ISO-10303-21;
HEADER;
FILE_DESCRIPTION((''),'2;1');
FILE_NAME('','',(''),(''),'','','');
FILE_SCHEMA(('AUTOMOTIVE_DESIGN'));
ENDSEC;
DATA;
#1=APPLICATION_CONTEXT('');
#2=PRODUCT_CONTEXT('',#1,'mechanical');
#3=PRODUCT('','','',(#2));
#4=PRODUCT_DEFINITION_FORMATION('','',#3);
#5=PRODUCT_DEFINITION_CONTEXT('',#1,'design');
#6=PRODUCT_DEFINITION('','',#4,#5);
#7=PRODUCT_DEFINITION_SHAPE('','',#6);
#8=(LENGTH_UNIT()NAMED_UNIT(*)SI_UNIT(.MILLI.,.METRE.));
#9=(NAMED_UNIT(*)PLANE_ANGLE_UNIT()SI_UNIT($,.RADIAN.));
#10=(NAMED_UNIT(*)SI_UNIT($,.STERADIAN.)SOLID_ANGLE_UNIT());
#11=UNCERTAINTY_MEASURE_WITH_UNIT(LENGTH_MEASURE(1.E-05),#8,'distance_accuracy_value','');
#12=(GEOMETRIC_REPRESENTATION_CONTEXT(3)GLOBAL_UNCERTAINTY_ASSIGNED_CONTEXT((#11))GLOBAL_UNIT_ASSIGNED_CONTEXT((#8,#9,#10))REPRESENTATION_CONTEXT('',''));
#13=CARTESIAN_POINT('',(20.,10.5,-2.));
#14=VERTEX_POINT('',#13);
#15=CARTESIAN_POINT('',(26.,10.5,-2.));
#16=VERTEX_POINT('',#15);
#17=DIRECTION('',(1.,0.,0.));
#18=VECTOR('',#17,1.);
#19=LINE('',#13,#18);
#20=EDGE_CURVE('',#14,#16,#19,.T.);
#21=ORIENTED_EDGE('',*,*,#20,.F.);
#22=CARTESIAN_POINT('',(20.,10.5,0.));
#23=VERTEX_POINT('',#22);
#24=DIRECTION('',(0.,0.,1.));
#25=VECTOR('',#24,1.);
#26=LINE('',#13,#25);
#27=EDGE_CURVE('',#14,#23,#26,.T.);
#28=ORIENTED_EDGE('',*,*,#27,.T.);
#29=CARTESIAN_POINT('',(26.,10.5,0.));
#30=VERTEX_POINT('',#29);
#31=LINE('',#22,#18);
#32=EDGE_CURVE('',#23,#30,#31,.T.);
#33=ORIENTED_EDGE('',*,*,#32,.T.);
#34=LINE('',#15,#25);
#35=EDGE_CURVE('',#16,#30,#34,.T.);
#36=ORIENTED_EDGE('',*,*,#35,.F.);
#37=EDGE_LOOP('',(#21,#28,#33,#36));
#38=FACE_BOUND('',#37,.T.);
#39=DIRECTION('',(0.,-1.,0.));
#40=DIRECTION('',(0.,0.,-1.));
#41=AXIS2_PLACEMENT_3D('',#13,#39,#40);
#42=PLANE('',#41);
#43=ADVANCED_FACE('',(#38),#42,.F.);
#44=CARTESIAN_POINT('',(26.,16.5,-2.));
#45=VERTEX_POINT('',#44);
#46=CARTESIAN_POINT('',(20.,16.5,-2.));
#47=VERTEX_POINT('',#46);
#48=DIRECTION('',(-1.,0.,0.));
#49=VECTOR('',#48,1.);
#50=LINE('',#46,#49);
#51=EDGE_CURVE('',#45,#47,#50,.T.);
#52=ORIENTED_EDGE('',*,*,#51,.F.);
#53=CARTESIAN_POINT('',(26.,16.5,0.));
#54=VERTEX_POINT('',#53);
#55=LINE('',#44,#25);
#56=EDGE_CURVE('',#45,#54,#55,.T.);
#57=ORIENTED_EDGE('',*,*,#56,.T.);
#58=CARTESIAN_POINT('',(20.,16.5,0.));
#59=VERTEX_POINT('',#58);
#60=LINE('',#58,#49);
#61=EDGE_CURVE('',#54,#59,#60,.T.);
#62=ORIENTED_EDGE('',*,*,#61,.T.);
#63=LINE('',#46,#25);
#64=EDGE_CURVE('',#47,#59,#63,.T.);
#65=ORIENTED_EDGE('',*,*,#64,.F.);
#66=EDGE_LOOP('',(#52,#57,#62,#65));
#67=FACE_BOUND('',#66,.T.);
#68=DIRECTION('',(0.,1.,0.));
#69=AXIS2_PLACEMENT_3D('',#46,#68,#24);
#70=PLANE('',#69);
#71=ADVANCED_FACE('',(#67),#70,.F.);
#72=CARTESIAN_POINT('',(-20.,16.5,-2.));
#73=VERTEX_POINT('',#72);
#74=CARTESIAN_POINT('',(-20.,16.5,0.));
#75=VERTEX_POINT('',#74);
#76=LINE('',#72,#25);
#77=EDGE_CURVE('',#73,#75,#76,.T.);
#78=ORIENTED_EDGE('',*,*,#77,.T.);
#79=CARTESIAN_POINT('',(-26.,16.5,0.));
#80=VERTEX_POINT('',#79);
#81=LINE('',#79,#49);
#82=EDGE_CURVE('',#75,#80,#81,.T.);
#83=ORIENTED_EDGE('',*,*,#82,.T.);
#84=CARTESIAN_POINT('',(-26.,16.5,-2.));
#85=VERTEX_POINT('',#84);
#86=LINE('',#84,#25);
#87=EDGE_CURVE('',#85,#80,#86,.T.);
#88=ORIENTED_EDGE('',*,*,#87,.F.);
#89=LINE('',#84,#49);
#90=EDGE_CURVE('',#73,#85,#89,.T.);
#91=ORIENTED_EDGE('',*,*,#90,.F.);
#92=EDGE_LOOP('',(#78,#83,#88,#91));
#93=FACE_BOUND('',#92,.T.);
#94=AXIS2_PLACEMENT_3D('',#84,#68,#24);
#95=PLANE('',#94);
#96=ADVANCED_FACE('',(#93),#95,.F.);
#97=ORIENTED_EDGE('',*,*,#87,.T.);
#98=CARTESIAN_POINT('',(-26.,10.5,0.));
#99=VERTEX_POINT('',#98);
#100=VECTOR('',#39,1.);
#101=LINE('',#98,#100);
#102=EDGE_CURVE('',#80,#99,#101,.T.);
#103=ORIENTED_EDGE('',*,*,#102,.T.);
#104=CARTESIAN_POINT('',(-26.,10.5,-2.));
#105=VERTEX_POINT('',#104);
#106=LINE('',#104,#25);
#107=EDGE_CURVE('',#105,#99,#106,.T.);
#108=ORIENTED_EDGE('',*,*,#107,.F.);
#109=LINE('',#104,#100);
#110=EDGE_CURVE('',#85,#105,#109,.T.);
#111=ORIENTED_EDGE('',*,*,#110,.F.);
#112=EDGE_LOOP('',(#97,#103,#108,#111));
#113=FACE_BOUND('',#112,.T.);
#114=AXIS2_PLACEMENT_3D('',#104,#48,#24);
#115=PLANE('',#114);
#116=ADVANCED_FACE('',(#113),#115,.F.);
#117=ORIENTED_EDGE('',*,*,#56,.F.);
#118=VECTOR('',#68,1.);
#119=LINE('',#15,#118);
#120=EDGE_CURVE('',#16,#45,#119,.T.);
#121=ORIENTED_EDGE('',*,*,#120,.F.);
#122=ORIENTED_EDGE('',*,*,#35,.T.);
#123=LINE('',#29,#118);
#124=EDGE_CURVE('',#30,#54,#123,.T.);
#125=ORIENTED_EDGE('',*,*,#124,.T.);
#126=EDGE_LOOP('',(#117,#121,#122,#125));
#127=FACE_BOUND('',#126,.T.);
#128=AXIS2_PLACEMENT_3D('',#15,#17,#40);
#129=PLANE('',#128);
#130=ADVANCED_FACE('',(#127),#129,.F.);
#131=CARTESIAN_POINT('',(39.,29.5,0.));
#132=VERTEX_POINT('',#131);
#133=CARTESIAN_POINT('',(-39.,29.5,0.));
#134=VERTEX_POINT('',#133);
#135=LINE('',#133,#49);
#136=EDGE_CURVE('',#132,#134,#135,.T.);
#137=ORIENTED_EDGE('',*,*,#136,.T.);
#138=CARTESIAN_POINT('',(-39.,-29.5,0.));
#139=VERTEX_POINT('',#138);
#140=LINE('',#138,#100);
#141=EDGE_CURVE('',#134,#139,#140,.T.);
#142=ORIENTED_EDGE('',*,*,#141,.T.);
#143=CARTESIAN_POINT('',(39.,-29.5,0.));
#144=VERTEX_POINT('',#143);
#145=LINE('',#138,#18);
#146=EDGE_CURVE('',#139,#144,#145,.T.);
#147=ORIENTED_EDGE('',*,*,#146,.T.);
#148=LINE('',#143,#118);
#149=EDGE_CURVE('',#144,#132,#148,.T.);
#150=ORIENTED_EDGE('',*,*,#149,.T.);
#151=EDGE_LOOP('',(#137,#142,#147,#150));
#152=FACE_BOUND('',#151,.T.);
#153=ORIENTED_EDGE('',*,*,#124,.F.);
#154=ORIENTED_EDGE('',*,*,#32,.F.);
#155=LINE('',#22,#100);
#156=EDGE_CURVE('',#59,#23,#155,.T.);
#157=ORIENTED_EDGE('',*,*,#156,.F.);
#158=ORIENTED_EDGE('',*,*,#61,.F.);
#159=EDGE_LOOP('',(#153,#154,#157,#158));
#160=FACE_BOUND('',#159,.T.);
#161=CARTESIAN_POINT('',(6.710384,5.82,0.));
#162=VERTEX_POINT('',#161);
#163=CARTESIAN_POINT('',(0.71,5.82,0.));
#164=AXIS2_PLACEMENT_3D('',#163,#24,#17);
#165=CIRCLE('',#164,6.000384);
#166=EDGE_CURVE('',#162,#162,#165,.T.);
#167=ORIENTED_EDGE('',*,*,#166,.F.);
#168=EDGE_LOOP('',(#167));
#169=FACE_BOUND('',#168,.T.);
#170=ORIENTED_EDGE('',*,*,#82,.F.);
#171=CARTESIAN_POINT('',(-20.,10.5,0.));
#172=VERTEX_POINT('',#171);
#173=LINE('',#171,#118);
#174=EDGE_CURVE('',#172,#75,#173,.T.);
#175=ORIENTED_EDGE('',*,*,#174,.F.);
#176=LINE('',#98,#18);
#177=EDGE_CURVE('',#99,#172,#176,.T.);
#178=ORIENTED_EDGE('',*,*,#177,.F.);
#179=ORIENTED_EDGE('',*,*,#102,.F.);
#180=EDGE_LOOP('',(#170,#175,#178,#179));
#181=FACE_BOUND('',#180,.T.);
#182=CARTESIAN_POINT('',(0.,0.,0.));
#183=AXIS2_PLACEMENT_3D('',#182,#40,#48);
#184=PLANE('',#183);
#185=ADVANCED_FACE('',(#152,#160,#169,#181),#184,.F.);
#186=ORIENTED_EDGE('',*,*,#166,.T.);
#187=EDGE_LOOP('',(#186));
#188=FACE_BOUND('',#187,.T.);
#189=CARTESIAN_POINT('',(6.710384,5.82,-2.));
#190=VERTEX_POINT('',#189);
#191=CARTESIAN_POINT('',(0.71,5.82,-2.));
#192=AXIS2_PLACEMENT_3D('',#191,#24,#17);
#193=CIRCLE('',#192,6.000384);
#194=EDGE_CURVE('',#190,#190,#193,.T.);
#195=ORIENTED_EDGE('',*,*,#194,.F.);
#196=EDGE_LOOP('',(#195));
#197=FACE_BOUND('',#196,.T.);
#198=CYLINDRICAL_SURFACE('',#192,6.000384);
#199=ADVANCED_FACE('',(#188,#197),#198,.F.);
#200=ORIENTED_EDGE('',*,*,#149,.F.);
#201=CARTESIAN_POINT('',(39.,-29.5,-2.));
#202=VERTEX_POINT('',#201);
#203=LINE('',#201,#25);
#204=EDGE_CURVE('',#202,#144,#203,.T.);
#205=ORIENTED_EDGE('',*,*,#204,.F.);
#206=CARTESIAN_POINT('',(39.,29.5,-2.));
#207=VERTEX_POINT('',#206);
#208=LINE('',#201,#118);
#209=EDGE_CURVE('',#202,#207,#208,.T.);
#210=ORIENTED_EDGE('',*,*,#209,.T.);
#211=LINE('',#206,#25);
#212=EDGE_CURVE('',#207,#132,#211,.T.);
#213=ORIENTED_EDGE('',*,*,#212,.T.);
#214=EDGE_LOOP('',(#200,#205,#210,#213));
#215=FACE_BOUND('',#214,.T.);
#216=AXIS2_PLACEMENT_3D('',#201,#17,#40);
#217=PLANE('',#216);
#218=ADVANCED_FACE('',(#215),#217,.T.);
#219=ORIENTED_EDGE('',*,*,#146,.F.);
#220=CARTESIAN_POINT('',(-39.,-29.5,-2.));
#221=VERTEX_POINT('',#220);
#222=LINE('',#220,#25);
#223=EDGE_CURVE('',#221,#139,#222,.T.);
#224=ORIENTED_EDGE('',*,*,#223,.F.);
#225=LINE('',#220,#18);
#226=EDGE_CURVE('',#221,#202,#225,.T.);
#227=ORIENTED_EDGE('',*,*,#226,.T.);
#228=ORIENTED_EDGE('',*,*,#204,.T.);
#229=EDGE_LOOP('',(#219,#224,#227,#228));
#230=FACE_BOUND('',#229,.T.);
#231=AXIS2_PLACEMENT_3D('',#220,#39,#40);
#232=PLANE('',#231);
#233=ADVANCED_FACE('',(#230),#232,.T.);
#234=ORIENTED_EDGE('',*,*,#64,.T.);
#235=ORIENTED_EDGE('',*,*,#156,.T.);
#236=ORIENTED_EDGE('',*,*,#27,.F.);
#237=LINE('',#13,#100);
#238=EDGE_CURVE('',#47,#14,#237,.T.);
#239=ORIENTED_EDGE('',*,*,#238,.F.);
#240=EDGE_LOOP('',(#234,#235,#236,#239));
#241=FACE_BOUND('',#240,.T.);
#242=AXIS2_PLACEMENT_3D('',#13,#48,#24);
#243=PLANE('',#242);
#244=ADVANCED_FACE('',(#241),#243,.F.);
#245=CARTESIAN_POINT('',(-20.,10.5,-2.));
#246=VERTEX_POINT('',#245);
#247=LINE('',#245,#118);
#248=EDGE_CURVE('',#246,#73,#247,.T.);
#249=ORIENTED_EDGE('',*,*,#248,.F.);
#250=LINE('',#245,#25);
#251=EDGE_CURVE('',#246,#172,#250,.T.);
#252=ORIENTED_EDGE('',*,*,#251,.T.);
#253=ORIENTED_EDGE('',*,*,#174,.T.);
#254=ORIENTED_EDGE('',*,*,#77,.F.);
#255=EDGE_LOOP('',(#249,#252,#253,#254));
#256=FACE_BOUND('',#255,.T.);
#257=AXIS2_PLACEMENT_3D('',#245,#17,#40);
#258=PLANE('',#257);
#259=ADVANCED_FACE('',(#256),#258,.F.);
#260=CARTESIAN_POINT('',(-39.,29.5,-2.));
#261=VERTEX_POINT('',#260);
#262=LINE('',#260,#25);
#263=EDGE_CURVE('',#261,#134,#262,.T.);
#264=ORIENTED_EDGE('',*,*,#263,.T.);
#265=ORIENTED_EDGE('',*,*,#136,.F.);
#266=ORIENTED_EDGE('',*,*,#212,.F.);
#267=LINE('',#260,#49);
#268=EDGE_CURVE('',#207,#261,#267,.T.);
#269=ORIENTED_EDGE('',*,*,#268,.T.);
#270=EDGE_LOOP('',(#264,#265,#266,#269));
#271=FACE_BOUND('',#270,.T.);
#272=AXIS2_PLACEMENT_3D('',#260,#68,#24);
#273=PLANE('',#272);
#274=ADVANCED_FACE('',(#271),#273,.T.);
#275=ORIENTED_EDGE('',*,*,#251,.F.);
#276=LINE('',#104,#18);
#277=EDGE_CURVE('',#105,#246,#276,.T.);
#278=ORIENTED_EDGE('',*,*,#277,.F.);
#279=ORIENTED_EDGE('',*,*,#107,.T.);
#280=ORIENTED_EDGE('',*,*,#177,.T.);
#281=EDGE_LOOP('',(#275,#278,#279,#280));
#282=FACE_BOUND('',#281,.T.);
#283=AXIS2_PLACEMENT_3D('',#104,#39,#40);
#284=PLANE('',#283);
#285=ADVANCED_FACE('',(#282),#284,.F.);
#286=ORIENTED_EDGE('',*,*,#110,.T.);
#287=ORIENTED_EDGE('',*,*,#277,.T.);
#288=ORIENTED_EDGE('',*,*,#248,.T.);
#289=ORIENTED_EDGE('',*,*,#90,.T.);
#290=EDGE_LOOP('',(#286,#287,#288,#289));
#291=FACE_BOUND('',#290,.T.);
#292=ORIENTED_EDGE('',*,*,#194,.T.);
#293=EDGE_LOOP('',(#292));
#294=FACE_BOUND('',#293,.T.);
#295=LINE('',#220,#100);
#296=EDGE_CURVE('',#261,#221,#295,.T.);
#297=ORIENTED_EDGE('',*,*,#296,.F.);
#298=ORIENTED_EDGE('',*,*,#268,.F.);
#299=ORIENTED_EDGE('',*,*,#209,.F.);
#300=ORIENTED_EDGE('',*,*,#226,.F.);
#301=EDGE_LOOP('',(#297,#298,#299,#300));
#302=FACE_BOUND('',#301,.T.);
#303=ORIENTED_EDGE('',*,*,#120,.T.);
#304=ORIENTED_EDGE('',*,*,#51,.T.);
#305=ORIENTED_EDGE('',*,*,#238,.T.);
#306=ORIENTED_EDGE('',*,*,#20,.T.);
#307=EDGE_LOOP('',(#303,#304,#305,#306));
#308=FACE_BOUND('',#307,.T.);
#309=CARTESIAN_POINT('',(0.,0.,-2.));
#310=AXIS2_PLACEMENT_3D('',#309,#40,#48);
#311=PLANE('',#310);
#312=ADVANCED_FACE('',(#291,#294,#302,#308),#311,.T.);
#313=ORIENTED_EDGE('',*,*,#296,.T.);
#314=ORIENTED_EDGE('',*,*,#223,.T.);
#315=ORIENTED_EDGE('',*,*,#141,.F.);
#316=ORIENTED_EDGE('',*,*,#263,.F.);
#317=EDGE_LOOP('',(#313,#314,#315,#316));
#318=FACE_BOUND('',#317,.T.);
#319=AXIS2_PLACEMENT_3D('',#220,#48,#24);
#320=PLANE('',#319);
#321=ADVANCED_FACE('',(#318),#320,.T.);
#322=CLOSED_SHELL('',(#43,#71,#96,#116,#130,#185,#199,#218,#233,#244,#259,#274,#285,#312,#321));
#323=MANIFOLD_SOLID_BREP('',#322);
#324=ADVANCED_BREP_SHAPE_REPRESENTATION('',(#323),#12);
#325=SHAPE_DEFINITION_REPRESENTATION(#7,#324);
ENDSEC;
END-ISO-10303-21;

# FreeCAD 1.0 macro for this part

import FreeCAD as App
import Part
import Sketcher
Q = App.Units.Quantity


def add_polygon(sketch, points):
    """Adds a closed chain of lines whose ends are joined by coincident constraints."""
    first, n = sketch.GeometryCount, len(points)
    for a, b in zip(points, points[1:] + points[:1]):
        sketch.addGeometry(Part.LineSegment(App.Vector(*a, 0), App.Vector(*b, 0)), False)
    for i in range(n):
        sketch.addConstraint(Sketcher.Constraint("Coincident", first + i, 2, first + (i + 1) % n, 1))

doc = App.newDocument("Part")
body = doc.addObject("PartDesign::Body", "Body")

# Sketch on XY plane
sketch1 = body.newObject("Sketcher::SketchObject", "Sketch")
sketch1.AttachmentSupport = (doc.getObject("XY_Plane"), [""])
sketch1.MapMode = "FlatFace"
add_polygon(sketch1, [(-39, 29.5), (-39, -29.5), (39, -29.5), (39, 29.5)])  # lines 0-3
sketch1.addGeometry(Part.Circle(App.Vector(0.71, 5.82, 0), App.Vector(0, 0, 1), 6.000384), False)  # 4
add_polygon(sketch1, [(-20, 10.5), (-26, 10.5), (-26, 16.5), (-20, 16.5)])  # lines 5-8
add_polygon(sketch1, [(26, 10.5), (20, 10.5), (20, 16.5), (26, 16.5)])  # lines 9-12
sketch1.addConstraint([
    Sketcher.Constraint("Vertical", 0),
    Sketcher.Constraint("Horizontal", 1),
    Sketcher.Constraint("Vertical", 2),
    Sketcher.Constraint("Horizontal", 3),
    Sketcher.Constraint("Horizontal", 5),
    Sketcher.Constraint("Vertical", 6),
    Sketcher.Constraint("Horizontal", 7),
    Sketcher.Constraint("Vertical", 8),
    Sketcher.Constraint("Horizontal", 9),
    Sketcher.Constraint("Vertical", 10),
    Sketcher.Constraint("Horizontal", 11),
    Sketcher.Constraint("Vertical", 12),
    Sketcher.Constraint("Symmetric", 0, 2, 2, 2, -1, 1),
    Sketcher.Constraint("Symmetric", 8, 2, 9, 2, -2),
    Sketcher.Constraint("Symmetric", 6, 2, 11, 2, -2),
    Sketcher.Constraint("Equal", 11, 6),
    Sketcher.Constraint("DistanceX", 1, 1, 1, 2, Q("78 mm")),
    Sketcher.Constraint("DistanceX", 5, 2, 5, 1, Q("6 mm")),
    Sketcher.Constraint("DistanceY", 0, 2, 0, 1, Q("59 mm")),
    Sketcher.Constraint("DistanceX", 5, 2, -1, 1, Q("26 mm")),
    Sketcher.Constraint("DistanceY", 5, 2, 3, 2, Q("19 mm")),
    Sketcher.Constraint("DistanceX", -1, 1, 4, 3, Q("0.71 mm")),
    Sketcher.Constraint("DistanceY", -1, 1, 4, 3, Q("5.82 mm")),
    Sketcher.Constraint("Diameter", 4, Q("12.000768 mm")),
])
pad1 = body.newObject("PartDesign::Pad", "Pad")
pad1.Profile = sketch1
pad1.Length = 2
pad1.Reversed = True

doc.recompute()
